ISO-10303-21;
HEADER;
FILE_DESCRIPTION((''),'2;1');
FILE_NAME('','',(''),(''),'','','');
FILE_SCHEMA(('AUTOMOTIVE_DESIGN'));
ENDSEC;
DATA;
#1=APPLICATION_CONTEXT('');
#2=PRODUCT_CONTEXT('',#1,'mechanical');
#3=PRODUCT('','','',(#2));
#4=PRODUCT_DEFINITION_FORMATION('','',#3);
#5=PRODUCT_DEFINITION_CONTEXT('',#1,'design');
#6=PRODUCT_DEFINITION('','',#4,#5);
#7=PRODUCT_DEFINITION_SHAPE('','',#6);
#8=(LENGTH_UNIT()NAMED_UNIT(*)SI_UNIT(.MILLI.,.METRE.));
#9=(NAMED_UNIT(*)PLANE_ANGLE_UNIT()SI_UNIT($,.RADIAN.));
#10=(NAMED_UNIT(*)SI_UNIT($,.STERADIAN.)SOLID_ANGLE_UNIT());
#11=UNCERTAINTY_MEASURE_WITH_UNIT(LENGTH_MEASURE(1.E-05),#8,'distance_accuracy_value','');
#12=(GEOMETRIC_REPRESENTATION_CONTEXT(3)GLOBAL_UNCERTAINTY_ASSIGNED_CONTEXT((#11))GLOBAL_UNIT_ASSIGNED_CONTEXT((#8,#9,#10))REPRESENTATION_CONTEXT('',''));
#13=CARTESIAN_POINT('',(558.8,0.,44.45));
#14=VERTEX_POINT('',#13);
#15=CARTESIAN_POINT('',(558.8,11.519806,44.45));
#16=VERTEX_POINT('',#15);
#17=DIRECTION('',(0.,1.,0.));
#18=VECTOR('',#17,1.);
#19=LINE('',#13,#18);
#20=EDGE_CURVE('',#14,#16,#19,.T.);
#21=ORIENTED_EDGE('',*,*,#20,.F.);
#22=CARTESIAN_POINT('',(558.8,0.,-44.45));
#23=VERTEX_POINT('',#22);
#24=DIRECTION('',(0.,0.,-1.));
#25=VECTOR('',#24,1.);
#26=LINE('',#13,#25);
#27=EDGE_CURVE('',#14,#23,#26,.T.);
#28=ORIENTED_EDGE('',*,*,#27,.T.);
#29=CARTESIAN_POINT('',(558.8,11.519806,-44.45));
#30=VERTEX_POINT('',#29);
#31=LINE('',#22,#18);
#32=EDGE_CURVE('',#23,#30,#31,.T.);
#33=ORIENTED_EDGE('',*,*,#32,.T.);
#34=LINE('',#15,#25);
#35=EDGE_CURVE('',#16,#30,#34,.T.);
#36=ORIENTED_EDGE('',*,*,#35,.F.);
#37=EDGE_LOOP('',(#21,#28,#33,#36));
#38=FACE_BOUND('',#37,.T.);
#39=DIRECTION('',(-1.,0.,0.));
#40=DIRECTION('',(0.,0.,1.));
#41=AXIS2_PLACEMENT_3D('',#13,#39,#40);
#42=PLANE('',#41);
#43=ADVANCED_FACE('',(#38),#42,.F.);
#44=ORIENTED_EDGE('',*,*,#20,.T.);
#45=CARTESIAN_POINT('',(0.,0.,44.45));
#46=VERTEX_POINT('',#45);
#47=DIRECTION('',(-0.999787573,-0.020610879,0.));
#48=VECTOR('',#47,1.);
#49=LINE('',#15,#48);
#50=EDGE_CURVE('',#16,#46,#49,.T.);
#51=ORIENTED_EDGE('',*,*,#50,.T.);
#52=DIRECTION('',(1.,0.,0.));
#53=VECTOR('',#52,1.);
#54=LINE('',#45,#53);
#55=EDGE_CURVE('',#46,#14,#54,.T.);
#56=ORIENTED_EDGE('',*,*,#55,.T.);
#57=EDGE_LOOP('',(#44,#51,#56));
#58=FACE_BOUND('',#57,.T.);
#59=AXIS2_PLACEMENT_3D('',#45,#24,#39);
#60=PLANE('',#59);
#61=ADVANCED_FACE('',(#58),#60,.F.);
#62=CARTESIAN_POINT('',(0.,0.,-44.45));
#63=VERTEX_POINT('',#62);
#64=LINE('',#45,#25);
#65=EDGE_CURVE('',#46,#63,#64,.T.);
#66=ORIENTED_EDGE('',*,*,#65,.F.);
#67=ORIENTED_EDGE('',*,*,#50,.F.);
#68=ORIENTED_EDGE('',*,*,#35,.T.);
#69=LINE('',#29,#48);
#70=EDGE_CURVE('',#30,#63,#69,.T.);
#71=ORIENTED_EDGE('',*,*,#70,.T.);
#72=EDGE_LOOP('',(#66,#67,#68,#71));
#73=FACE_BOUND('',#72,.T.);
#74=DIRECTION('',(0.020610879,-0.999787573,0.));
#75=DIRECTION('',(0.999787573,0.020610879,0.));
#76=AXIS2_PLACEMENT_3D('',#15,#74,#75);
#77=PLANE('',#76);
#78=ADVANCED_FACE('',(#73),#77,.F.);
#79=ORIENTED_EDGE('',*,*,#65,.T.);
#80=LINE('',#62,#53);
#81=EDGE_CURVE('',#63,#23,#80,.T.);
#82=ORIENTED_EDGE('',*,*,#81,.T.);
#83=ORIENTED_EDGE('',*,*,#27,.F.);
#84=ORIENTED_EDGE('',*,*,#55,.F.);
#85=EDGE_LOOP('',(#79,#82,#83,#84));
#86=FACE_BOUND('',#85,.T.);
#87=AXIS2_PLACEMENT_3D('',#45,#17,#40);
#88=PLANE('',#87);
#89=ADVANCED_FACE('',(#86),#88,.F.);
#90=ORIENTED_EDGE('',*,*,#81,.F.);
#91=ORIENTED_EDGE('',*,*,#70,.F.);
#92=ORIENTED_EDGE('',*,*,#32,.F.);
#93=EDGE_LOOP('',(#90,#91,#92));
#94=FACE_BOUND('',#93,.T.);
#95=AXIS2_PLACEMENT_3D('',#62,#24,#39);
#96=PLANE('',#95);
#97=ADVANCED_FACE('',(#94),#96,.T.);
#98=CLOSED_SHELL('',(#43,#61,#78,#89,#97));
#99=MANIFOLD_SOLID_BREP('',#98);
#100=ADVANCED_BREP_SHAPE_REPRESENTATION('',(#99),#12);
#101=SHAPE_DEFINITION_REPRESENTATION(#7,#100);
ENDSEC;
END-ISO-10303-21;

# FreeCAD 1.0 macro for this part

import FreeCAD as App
import Part
import Sketcher
Q = App.Units.Quantity

doc = App.newDocument("Part")
body = doc.addObject("PartDesign::Body", "Body")

# Sketch on XY plane
sketch1 = doc.addObject("Sketcher::SketchObject", "Sketch")
body.addObject(sketch1)
sketch1.AttachmentSupport = (doc.XY_Plane, [""])
sketch1.MapMode = "FlatFace"
sketch1.addGeometry([
    Part.LineSegment(App.Vector(0, 0, 0), App.Vector(558.8, 0, 0)),
    Part.LineSegment(App.Vector(558.8, 0, 0), App.Vector(558.8, 11.519806, 0)),
    Part.LineSegment(App.Vector(558.8, 11.519806, 0), App.Vector(0, 0, 0)),
], False)
sketch1.addConstraint([
    Sketcher.Constraint("Coincident", 0, 2, 1, 1),
    Sketcher.Constraint("Coincident", 1, 2, 2, 1),
    Sketcher.Constraint("Coincident", 2, 2, 0, 1),
    Sketcher.Constraint("Horizontal", 0),
    Sketcher.Constraint("Vertical", 1),
    Sketcher.Constraint("Coincident", 2, 2, -1, 1),
    Sketcher.Constraint("DistanceX", 0, 1, 0, 2, Q("22 in")),
    Sketcher.Constraint("Distance", 2, 558.918729),
])
pad1 = doc.addObject("PartDesign::Pad", "Pad")
body.addObject(pad1)
pad1.Profile = sketch1
pad1.Length = Q("3.5 in")
pad1.Midplane = True

doc.recompute()
